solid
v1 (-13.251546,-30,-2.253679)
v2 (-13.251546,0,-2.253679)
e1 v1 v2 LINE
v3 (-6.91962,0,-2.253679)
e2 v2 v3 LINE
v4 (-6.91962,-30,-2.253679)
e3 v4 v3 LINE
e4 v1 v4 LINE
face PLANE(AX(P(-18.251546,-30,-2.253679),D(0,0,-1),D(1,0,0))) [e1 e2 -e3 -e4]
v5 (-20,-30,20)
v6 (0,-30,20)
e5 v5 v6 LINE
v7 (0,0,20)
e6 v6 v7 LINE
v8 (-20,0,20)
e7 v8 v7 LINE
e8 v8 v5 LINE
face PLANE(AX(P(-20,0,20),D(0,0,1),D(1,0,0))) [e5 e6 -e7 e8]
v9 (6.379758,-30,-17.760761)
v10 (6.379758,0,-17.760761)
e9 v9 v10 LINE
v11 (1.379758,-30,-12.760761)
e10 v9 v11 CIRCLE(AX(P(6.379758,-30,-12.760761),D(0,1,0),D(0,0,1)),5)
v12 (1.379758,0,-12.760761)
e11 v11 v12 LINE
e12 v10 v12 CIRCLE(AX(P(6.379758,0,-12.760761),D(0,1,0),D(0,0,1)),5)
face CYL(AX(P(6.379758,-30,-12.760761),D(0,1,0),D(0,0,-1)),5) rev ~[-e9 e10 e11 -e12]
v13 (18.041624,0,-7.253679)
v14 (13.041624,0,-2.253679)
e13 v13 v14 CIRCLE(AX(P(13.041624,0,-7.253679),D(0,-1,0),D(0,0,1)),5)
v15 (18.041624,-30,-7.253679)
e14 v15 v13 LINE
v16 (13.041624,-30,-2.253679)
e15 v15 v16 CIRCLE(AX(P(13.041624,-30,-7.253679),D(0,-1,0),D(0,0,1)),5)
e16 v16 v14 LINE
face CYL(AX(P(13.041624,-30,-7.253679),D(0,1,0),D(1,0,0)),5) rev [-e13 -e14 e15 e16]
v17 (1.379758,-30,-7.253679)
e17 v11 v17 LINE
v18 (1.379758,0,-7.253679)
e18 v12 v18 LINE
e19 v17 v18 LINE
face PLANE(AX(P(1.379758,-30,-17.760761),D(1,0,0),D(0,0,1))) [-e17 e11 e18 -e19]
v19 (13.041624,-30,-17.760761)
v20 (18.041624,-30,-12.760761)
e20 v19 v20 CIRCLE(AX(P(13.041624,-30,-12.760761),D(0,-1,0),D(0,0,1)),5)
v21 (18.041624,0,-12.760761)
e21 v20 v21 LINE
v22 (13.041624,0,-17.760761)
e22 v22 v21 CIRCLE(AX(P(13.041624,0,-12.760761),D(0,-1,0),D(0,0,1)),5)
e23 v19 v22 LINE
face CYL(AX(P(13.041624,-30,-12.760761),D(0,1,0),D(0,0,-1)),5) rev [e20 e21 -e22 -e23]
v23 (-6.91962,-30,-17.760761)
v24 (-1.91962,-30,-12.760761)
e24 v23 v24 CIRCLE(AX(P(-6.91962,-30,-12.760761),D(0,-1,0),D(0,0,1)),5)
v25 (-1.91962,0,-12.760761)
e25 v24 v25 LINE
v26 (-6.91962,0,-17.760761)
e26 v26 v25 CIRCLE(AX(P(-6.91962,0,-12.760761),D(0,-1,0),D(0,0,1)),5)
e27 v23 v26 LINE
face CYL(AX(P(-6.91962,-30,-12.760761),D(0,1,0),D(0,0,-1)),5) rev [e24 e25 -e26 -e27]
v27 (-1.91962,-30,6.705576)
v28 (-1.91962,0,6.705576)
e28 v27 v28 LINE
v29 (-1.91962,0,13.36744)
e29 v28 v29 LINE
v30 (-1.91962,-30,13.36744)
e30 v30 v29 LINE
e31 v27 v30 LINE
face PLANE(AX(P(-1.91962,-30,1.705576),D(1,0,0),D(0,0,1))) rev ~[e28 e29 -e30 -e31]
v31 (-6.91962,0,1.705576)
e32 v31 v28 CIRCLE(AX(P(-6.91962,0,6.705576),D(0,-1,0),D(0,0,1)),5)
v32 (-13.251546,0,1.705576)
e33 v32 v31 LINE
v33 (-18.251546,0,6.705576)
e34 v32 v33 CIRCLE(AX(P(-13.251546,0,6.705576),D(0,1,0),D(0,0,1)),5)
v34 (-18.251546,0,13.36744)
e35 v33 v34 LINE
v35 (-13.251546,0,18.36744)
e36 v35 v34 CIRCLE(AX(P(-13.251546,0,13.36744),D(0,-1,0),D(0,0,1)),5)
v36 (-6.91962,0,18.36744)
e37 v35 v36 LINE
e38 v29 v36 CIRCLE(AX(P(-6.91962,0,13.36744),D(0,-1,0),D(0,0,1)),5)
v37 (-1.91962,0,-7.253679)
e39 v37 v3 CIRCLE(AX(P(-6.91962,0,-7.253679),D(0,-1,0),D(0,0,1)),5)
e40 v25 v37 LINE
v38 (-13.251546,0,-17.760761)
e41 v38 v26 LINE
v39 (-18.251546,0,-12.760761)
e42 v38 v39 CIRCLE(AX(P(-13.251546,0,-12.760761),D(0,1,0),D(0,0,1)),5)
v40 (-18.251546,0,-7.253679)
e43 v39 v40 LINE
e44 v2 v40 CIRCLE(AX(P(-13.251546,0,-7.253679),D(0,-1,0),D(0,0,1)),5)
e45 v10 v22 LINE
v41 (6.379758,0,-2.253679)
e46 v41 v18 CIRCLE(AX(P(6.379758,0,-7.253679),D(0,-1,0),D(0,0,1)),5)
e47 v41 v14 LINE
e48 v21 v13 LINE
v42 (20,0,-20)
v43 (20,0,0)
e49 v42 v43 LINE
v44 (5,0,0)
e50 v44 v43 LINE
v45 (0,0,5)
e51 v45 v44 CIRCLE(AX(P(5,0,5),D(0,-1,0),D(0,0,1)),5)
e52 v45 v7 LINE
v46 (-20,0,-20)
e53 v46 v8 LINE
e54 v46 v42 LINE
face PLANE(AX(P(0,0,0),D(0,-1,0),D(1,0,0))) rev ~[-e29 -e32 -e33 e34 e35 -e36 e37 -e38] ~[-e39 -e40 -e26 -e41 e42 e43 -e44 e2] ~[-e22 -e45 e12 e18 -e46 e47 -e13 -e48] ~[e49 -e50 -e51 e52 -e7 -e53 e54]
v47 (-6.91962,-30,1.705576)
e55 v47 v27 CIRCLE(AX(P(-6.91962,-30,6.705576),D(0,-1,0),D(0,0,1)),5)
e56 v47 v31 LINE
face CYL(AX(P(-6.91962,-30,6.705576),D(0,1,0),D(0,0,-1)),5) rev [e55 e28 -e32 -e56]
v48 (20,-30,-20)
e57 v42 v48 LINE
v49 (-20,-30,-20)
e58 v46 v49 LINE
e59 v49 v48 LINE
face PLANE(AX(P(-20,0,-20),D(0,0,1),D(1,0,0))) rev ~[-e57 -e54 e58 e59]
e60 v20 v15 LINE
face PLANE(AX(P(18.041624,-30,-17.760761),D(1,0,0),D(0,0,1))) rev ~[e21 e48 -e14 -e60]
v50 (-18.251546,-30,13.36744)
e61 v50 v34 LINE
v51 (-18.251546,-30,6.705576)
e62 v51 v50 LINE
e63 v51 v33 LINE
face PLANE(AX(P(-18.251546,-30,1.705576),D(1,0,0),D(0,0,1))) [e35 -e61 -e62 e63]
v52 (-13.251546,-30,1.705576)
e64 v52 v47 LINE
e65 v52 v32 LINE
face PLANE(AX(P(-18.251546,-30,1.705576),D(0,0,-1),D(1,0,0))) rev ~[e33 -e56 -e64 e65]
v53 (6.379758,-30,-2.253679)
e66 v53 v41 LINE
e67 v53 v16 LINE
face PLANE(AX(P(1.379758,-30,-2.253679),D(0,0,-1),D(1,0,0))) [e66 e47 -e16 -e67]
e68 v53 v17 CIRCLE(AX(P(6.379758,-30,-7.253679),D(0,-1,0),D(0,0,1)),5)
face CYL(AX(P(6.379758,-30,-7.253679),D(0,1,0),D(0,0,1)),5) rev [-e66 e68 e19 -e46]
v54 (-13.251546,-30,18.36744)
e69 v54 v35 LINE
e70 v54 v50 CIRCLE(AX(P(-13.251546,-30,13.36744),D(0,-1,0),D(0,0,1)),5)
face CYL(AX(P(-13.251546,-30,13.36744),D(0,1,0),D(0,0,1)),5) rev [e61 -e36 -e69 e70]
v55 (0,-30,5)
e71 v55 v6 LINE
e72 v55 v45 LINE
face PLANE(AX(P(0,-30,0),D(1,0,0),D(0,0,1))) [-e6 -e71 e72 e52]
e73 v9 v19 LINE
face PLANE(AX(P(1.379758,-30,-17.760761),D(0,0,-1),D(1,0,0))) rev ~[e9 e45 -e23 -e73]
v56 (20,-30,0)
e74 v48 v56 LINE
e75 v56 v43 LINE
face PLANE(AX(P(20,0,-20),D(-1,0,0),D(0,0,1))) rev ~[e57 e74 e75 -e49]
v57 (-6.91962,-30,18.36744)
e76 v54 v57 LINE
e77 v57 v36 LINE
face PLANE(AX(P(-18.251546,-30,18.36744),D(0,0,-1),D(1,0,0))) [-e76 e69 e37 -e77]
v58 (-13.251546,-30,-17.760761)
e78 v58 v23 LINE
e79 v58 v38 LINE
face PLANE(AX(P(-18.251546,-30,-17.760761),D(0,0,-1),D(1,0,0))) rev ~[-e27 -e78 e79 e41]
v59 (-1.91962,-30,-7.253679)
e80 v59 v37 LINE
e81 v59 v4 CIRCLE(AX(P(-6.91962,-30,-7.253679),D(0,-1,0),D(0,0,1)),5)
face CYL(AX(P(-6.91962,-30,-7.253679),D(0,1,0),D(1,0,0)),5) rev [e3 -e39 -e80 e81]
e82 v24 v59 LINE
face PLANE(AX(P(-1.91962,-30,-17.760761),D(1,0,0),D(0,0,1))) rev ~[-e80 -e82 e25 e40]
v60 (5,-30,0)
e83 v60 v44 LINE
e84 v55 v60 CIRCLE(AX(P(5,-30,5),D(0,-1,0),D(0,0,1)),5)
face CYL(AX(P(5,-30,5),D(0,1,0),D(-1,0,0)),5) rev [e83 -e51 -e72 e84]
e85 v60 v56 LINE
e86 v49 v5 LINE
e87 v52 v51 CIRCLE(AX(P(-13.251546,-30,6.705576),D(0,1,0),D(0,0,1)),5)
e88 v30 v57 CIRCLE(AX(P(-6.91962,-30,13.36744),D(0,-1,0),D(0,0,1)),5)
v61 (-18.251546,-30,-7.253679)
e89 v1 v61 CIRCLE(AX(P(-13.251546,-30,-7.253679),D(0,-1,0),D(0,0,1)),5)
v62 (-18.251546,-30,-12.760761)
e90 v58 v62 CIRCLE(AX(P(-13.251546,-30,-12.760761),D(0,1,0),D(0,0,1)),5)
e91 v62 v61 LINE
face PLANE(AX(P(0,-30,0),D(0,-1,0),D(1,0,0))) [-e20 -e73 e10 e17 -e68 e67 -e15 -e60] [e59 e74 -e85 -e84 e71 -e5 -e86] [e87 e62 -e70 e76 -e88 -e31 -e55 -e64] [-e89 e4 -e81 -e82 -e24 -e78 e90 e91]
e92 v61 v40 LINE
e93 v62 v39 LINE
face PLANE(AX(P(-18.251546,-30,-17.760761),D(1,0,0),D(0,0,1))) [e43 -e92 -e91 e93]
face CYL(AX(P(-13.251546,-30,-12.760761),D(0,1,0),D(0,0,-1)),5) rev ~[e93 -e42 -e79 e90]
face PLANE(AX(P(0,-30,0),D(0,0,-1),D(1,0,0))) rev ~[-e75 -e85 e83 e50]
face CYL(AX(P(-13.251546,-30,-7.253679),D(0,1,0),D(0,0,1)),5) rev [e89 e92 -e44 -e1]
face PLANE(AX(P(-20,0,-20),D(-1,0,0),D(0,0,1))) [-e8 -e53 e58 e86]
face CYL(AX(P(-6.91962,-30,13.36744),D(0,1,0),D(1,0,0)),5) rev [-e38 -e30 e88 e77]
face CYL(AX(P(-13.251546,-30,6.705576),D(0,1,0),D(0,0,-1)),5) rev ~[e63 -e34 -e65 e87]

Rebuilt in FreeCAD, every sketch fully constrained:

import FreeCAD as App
import Part
import Sketcher
from FreeCAD import Vector


def edges_at(feature, points):
    """Names of the edges that pass closest to the given points."""
    edges = feature.Shape.Edges
    near = lambda p: min(range(len(edges)), key=lambda i: edges[i].distToShape(Part.Vertex(*p))[0])
    return sorted({f"Edge{near(p) + 1}" for p in points})

doc = App.newDocument("Part")
body = doc.addObject("PartDesign::Body", "Body")

# Sketch on XZ plane
sketch1 = body.newObject("Sketcher::SketchObject", "Sketch")
sketch1.AttachmentSupport = (doc.getObject("XZ_Plane"), [""])
sketch1.MapMode = "FlatFace"
sketch1.addGeometry([
    Part.LineSegment(Vector(-20, 20, 0), Vector(-20, -20, 0)),
    Part.LineSegment(Vector(-20, -20, 0), Vector(20, -20, 0)),
    Part.LineSegment(Vector(20, -20, 0), Vector(20, 20, 0)),
    Part.LineSegment(Vector(20, 20, 0), Vector(-20, 20, 0)),
], False)
sketch1.addConstraint([
    Sketcher.Constraint("Coincident", 0, 2, 1, 1),
    Sketcher.Constraint("Coincident", 1, 2, 2, 1),
    Sketcher.Constraint("Coincident", 2, 2, 3, 1),
    Sketcher.Constraint("Coincident", 3, 2, 0, 1),
    Sketcher.Constraint("Vertical", 0),
    Sketcher.Constraint("Horizontal", 1),
    Sketcher.Constraint("Vertical", 2),
    Sketcher.Constraint("Horizontal", 3),
    Sketcher.Constraint("Symmetric", 0, 2, 2, 2, -1, 1),
    Sketcher.Constraint("Equal", 3, 0),
    Sketcher.Constraint("DistanceX", 1, 1, 1, 2, 40.0),
])
pad1 = body.newObject("PartDesign::Pad", "Pad")
pad1.Profile = sketch1
pad1.Length = 30

# Sketch on XZ plane
sketch2 = body.newObject("Sketcher::SketchObject", "Sketch001")
sketch2.AttachmentSupport = (doc.getObject("XZ_Plane"), [""])
sketch2.MapMode = "FlatFace"
sketch2.AttachmentOffset = App.Placement(Vector(0, 0, 30), App.Rotation())
sketch2.addGeometry([
    Part.LineSegment(Vector(0, 20, 0), Vector(0, 0, 0)),  # 0
    Part.LineSegment(Vector(0, 0, 0), Vector(20, 0, 0)),  # 1
    Part.LineSegment(Vector(20, 0, 0), Vector(20, 20, 0)),  # 2
    Part.LineSegment(Vector(20, 20, 0), Vector(0, 20, 0)),  # 3
    Part.LineSegment(Vector(-18, 18, 0), Vector(-18, 2, 0)),  # 4
    Part.LineSegment(Vector(-18, 2, 0), Vector(-2, 2, 0)),  # 5
    Part.LineSegment(Vector(-2, 2, 0), Vector(-2, 18, 0)),  # 6
    Part.LineSegment(Vector(-2, 18, 0), Vector(-18, 18, 0)),  # 7
    Part.LineSegment(Vector(-18, -2, 0), Vector(-18, -18, 0)),  # 8
    Part.LineSegment(Vector(-18, -18, 0), Vector(-2, -18, 0)),  # 9
    Part.LineSegment(Vector(-2, -18, 0), Vector(-2, -2, 0)),  # 10
    Part.LineSegment(Vector(-2, -2, 0), Vector(-18, -2, 0)),  # 11
    Part.LineSegment(Vector(1, -2, 0), Vector(1, -18, 0)),  # 12
    Part.LineSegment(Vector(1, -18, 0), Vector(18, -18, 0)),  # 13
    Part.LineSegment(Vector(18, -18, 0), Vector(18, -2, 0)),  # 14
    Part.LineSegment(Vector(18, -2, 0), Vector(1, -2, 0)),  # 15
], False)
sketch2.addConstraint([
    Sketcher.Constraint("Coincident", 0, 2, 1, 1),
    Sketcher.Constraint("Coincident", 1, 2, 2, 1),
    Sketcher.Constraint("Coincident", 2, 2, 3, 1),
    Sketcher.Constraint("Coincident", 3, 2, 0, 1),
    Sketcher.Constraint("Coincident", 4, 2, 5, 1),
    Sketcher.Constraint("Coincident", 5, 2, 6, 1),
    Sketcher.Constraint("Coincident", 6, 2, 7, 1),
    Sketcher.Constraint("Coincident", 7, 2, 4, 1),
    Sketcher.Constraint("Coincident", 8, 2, 9, 1),
    Sketcher.Constraint("Coincident", 9, 2, 10, 1),
    Sketcher.Constraint("Coincident", 10, 2, 11, 1),
    Sketcher.Constraint("Coincident", 11, 2, 8, 1),
    Sketcher.Constraint("Coincident", 12, 2, 13, 1),
    Sketcher.Constraint("Coincident", 13, 2, 14, 1),
    Sketcher.Constraint("Coincident", 14, 2, 15, 1),
    Sketcher.Constraint("Coincident", 15, 2, 12, 1),
    Sketcher.Constraint("Vertical", 0),
    Sketcher.Constraint("Horizontal", 1),
    Sketcher.Constraint("Vertical", 2),
    Sketcher.Constraint("Horizontal", 3),
    Sketcher.Constraint("Vertical", 4),
    Sketcher.Constraint("Horizontal", 5),
    Sketcher.Constraint("Vertical", 6),
    Sketcher.Constraint("Horizontal", 7),
    Sketcher.Constraint("Vertical", 8),
    Sketcher.Constraint("Horizontal", 9),
    Sketcher.Constraint("Vertical", 10),
    Sketcher.Constraint("Horizontal", 11),
    Sketcher.Constraint("Vertical", 12),
    Sketcher.Constraint("Horizontal", 13),
    Sketcher.Constraint("Vertical", 14),
    Sketcher.Constraint("Horizontal", 15),
    Sketcher.Constraint("Coincident", 0, 2, -1, 1),
    Sketcher.Constraint("Horizontal", 9, 2, 12, 2),
    Sketcher.Constraint("Horizontal", 11, 2, 14, 2),
    Sketcher.Constraint("Vertical", 7, 2, 8, 2),
    Sketcher.Constraint("Vertical", 6, 2, 9, 2),
    Sketcher.Constraint("Equal", 3, 0),
    Sketcher.Constraint("DistanceX", 1, 1, 1, 2, 20.0),
    Sketcher.Constraint("DistanceY", 8, 2, 8, 1, 15.507082),
    Sketcher.Constraint("DistanceY", 8, 2, 7, 2, 36.128201),
    Sketcher.Constraint("DistanceX", 5, 1, 5, 2, 16.331926),
    Sketcher.Constraint("DistanceX", 13, 1, 13, 2, 16.661866),
    Sketcher.Constraint("DistanceY", 4, 2, 4, 1, 16.661864),
    Sketcher.Constraint("DistanceX", 5, 2, -1, 1, 1.91962),
    Sketcher.Constraint("DistanceY", -1, 1, 6, 2, 18.36744),
    Sketcher.Constraint("DistanceX", -1, 1, 12, 2, 1.379758),
])
pocket1 = body.newObject("PartDesign::Pocket", "Pocket")
pocket1.Profile = sketch2
pocket1.Type = "ThroughAll"
doc.recompute()

fillet = body.newObject("PartDesign::Fillet", "Fillet")
fillet.Base = (pocket1, edges_at(pocket1, [
    (0, -15, 0),
    (-18.252, -15, 18.367),
    (-1.92, -15, 18.367),
    (-18.252, -15, 1.706),
    (-1.92, -15, 1.706),
    (-1.92, -15, -17.761),
    (18.042, -15, -17.761),
    (18.042, -15, -2.254),
    (-1.92, -15, -2.254),
    (-18.252, -15, -2.254),
    (1.38, -15, -2.254),
    (-18.252, -15, -17.761),
    (1.38, -15, -17.761),
]))
fillet.Radius = 5

doc.recompute()
